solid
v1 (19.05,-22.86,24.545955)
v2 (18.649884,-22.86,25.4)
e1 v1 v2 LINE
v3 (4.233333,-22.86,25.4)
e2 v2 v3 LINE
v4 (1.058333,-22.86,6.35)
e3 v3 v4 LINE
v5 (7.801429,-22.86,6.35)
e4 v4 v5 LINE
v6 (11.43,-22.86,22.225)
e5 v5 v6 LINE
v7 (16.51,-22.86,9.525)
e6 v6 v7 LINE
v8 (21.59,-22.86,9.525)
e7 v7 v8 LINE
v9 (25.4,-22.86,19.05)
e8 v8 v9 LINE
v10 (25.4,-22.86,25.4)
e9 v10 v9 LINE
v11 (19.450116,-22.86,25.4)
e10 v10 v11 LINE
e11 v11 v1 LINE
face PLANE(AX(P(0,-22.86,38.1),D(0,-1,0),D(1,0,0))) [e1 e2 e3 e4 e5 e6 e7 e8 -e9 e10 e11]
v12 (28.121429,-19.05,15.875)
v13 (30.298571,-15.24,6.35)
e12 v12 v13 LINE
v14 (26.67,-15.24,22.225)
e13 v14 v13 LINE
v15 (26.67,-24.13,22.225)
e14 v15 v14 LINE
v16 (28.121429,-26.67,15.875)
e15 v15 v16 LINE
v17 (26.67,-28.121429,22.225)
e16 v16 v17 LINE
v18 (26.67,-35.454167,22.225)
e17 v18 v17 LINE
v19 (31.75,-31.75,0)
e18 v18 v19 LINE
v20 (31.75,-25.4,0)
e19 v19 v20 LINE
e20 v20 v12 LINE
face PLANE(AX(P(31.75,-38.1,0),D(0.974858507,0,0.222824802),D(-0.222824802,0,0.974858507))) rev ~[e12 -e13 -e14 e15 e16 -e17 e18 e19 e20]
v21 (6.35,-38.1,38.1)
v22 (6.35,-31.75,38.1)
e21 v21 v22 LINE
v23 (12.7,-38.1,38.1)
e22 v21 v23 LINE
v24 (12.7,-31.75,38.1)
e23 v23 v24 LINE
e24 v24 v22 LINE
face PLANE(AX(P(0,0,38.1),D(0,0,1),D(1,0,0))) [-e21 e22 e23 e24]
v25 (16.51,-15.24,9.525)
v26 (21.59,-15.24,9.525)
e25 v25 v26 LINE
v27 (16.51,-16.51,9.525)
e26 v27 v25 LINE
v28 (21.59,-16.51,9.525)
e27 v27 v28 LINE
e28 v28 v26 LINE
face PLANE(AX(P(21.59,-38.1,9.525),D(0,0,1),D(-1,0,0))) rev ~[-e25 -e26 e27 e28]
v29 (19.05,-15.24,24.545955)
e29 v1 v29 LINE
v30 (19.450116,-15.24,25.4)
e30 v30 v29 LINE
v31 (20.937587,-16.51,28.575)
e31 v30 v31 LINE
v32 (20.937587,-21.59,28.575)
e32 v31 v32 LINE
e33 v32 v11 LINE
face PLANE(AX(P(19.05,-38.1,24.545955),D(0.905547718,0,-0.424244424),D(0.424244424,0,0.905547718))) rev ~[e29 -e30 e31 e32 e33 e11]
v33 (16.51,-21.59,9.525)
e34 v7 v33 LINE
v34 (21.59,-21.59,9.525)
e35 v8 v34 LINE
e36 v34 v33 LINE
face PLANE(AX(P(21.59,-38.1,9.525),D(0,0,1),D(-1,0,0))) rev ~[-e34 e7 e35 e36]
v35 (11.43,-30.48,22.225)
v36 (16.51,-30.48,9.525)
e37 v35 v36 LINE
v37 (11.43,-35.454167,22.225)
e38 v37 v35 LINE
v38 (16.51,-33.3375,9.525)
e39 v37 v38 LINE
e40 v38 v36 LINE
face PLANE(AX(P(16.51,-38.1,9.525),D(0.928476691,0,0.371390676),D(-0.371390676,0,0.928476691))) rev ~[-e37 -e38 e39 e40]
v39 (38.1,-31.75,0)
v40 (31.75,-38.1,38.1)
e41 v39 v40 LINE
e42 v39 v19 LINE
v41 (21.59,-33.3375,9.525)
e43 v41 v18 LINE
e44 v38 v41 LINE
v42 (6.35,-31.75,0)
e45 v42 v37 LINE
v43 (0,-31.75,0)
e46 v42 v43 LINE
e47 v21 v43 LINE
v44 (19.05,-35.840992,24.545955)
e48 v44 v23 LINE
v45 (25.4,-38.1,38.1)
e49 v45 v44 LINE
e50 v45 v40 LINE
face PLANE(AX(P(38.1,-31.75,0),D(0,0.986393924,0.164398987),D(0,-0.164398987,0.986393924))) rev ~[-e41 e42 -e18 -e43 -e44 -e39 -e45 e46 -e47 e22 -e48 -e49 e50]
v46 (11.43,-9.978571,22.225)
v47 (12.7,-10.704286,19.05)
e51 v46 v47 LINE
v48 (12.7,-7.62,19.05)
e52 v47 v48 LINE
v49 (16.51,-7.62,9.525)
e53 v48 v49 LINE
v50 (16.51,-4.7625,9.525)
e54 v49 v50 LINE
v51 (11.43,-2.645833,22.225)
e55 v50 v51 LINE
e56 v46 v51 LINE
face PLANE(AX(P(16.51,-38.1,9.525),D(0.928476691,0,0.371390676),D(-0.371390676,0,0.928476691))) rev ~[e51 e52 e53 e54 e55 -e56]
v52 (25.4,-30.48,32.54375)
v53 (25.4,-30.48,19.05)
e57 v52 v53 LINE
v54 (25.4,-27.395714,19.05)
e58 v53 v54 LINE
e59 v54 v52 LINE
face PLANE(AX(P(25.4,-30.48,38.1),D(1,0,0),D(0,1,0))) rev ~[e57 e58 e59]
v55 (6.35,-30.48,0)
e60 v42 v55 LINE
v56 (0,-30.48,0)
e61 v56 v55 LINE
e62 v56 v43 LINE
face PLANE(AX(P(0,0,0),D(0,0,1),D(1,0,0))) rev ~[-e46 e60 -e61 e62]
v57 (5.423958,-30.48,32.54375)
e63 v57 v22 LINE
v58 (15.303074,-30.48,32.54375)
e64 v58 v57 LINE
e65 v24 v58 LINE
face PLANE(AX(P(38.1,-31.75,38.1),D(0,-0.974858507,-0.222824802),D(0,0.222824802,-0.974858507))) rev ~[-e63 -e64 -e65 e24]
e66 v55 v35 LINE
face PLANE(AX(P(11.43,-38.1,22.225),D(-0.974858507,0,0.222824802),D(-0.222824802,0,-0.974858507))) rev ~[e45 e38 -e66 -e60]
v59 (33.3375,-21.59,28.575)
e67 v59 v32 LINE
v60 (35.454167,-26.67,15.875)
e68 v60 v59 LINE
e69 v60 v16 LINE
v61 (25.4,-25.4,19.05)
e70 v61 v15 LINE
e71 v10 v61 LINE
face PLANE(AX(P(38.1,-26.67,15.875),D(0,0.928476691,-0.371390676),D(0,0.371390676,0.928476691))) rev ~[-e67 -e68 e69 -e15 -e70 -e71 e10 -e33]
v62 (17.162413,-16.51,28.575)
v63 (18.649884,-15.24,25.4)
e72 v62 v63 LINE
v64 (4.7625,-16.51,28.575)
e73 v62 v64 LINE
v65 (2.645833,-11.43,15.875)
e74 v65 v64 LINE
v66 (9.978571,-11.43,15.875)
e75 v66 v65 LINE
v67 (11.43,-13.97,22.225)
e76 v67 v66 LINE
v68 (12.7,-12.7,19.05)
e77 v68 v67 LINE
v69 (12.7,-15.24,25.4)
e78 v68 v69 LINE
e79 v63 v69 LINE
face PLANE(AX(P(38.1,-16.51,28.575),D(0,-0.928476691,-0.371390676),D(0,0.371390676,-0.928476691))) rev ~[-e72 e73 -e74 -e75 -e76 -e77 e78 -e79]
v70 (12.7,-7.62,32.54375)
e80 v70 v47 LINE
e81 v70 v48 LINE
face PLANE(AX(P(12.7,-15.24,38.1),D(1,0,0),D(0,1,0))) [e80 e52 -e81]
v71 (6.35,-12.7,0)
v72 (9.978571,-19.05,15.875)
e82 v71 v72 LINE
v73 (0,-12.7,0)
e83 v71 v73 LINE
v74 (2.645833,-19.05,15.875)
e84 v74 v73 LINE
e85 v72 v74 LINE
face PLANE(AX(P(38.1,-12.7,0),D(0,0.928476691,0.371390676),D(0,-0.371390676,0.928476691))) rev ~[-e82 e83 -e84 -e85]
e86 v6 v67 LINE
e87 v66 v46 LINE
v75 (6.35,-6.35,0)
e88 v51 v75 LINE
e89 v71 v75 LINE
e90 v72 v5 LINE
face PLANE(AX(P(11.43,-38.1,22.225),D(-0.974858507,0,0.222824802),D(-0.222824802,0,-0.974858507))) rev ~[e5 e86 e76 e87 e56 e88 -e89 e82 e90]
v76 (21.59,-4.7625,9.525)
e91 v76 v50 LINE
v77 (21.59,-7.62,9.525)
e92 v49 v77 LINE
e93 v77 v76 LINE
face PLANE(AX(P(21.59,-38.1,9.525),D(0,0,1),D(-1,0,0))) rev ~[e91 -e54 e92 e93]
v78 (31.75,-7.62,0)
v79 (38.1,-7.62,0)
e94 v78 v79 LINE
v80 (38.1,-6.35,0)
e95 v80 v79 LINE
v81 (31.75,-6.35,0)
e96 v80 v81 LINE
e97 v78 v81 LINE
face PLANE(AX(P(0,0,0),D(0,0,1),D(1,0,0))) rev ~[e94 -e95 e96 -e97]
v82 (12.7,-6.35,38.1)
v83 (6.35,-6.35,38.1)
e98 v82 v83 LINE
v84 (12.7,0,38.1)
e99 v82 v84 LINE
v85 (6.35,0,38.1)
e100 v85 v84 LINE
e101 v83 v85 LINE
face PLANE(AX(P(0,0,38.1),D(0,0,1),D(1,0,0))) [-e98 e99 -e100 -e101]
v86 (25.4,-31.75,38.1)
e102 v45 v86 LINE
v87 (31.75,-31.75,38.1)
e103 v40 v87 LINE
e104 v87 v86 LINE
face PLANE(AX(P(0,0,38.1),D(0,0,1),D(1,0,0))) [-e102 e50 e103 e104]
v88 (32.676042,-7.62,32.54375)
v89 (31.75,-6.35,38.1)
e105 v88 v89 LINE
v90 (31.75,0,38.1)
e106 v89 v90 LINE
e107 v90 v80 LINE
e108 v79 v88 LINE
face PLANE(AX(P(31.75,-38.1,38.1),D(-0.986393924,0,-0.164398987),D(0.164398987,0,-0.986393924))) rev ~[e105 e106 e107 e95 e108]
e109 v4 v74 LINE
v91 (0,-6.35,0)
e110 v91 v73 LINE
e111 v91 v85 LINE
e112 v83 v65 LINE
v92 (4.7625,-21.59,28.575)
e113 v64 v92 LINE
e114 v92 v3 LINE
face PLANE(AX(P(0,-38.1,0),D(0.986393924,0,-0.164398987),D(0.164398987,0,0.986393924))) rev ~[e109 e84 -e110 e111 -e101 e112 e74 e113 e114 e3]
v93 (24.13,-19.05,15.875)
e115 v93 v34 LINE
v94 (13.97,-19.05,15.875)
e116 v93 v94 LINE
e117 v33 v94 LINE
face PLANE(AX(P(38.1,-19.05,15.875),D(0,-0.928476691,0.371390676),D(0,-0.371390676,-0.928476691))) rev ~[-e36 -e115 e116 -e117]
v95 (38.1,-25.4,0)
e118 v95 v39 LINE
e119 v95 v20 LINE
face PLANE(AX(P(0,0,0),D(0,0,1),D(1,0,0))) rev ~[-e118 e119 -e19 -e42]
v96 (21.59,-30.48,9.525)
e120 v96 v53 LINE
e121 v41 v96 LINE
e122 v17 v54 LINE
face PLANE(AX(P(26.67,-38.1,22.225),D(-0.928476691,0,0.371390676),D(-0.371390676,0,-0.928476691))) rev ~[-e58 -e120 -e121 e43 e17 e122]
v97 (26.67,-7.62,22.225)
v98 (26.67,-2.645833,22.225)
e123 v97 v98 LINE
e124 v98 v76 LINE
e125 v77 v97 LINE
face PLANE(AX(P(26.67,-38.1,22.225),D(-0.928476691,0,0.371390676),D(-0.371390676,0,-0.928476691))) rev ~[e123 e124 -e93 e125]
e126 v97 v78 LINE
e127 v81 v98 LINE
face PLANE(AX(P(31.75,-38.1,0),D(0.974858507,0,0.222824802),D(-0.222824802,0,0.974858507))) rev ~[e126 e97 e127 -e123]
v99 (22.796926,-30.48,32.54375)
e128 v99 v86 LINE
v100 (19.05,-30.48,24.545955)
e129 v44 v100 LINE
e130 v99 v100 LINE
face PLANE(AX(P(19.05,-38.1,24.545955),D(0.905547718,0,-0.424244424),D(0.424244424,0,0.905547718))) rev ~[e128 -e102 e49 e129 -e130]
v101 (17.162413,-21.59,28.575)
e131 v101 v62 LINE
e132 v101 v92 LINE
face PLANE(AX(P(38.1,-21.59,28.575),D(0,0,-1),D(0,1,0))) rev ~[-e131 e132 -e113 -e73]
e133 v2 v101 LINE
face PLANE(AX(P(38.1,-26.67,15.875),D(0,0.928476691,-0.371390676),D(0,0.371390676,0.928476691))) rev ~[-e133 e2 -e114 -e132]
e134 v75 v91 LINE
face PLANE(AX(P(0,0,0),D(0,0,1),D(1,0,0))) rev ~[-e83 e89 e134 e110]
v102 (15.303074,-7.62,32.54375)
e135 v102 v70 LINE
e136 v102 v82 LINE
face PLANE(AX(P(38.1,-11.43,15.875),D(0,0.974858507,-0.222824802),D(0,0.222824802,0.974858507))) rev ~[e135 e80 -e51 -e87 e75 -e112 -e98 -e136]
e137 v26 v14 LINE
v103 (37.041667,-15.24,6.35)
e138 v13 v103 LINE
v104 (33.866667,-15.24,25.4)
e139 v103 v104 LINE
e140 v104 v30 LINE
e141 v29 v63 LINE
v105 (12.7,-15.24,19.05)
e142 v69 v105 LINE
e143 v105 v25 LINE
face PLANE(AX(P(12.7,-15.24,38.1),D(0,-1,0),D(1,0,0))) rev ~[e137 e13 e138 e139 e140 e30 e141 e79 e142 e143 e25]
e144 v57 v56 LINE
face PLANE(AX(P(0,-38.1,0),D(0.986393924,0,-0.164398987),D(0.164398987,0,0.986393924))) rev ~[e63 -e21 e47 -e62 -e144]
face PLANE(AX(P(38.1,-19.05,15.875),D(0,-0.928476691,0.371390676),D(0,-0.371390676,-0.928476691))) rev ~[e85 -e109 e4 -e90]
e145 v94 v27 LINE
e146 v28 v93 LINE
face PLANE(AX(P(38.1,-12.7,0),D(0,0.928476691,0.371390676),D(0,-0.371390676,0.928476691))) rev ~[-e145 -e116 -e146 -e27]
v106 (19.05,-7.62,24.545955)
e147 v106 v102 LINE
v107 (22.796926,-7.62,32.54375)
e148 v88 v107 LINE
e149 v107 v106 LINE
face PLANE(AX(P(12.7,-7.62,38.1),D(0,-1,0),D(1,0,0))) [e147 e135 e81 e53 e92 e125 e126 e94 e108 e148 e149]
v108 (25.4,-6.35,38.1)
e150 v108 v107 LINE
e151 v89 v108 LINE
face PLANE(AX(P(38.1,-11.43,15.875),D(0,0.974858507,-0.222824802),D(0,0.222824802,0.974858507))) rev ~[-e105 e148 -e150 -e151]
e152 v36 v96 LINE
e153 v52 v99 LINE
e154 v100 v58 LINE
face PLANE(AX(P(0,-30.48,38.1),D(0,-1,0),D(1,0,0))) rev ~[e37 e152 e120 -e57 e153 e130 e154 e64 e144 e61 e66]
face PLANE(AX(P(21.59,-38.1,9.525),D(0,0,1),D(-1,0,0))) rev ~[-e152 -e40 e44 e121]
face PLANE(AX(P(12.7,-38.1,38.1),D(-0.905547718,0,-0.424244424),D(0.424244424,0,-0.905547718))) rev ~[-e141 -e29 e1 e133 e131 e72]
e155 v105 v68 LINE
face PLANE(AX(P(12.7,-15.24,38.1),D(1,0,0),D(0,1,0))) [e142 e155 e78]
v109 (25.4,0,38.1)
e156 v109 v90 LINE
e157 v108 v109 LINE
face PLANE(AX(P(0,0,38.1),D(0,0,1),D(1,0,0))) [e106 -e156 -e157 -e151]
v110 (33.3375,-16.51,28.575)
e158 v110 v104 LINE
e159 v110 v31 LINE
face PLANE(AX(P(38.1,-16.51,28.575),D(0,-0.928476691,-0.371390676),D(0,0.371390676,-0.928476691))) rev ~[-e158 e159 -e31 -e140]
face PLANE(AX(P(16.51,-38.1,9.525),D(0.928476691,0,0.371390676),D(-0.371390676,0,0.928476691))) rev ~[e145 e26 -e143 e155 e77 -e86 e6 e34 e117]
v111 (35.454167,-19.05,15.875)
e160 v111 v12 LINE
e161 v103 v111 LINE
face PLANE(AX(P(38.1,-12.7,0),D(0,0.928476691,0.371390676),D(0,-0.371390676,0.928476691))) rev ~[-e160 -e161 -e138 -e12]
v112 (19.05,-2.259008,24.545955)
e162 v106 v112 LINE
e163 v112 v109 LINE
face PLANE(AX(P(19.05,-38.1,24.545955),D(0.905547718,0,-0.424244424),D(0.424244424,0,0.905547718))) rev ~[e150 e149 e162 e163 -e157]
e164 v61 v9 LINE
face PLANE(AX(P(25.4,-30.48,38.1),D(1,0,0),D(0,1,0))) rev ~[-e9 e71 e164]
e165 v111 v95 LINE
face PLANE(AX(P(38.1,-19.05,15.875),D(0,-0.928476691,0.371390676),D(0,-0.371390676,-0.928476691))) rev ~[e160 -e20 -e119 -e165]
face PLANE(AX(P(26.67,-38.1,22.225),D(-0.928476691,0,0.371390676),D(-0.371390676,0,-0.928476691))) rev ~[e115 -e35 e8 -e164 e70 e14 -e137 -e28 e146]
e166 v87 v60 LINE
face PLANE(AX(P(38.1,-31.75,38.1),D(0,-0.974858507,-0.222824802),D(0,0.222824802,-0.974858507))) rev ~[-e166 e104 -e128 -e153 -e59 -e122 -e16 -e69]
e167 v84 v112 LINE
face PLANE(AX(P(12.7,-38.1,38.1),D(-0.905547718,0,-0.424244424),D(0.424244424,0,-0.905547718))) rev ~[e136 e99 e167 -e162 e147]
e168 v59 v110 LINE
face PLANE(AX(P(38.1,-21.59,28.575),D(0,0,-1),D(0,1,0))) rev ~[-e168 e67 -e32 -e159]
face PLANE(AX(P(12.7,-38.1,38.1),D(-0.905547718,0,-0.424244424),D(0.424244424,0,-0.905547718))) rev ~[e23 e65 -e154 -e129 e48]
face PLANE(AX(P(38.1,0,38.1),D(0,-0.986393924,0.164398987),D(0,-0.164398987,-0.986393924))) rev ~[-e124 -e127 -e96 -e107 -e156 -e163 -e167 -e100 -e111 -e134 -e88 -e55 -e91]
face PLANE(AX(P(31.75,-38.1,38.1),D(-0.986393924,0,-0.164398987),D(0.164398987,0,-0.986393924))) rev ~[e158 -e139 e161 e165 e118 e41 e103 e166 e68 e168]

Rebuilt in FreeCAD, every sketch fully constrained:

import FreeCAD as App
import Part
import Sketcher
from FreeCAD import Vector
Q = App.Units.Quantity


def add_polygon(sketch, points):
    """Adds a closed chain of lines whose ends are joined by coincident constraints."""
    first, n = sketch.GeometryCount, len(points)
    for a, b in zip(points, points[1:] + points[:1]):
        sketch.addGeometry(Part.LineSegment(App.Vector(*a, 0), App.Vector(*b, 0)), False)
    for i in range(n):
        sketch.addConstraint(Sketcher.Constraint("Coincident", first + i, 2, first + (i + 1) % n, 1))

doc = App.newDocument("Part")
body = doc.addObject("PartDesign::Body", "Body")

# Sketch on XZ plane
sketch1 = doc.addObject("Sketcher::SketchObject", "Sketch")
body.addObject(sketch1)
sketch1.AttachmentSupport = (doc.XZ_Plane, [""])
sketch1.MapMode = "FlatFace"
add_polygon(sketch1, [(0, 38), (0, 0), (38, 0), (38, 38)])  # lines 0-3
sketch1.addConstraint(Sketcher.Constraint("Vertical", 0))
sketch1.addConstraint(Sketcher.Constraint("Horizontal", 1))
sketch1.addConstraint(Sketcher.Constraint("Vertical", 2))
sketch1.addConstraint(Sketcher.Constraint("Horizontal", 3))
sketch1.addConstraint(Sketcher.Constraint("Coincident", 0, 2, -1, 1))
sketch1.addConstraint(Sketcher.Constraint("Equal", 3, 0))
sketch1.addConstraint(Sketcher.Constraint("DistanceX", 1, 1, 1, 2, Q("1.5 in")))
pad1 = doc.addObject("PartDesign::Pad", "Pad")
body.addObject(pad1)
pad1.Profile = sketch1
pad1.Length = Q("1.5 in")

# Sketch on YZ plane
sketch2 = doc.addObject("Sketcher::SketchObject", "Sketch001")
body.addObject(sketch2)
sketch2.AttachmentSupport = (doc.YZ_Plane, [""])
sketch2.MapMode = "FlatFace"
sketch2.AttachmentOffset = App.Placement(Vector(0, 0, 1.5 * 25.4), App.Rotation())
add_polygon(sketch2, [(-11, 16), (-6, 38), (-32, 38), (-27, 16), (-22, 29), (-17, 29)])  # lines 0-5
add_polygon(sketch2, [(-32, 0), (-38, 38), (-38, 0)])  # lines 6-8
add_polygon(sketch2, [(-6, 0), (0, 0), (0, 38)])  # lines 9-11
add_polygon(sketch2, [(-25, 0), (-13, 0), (-19, 16)])  # lines 12-14
sketch2.addConstraint(Sketcher.Constraint("Horizontal", 1))
sketch2.addConstraint(Sketcher.Constraint("Horizontal", 4))
sketch2.addConstraint(Sketcher.Constraint("Vertical", 7))
sketch2.addConstraint(Sketcher.Constraint("Horizontal", 8))
sketch2.addConstraint(Sketcher.Constraint("Horizontal", 9))
sketch2.addConstraint(Sketcher.Constraint("Vertical", 10))
sketch2.addConstraint(Sketcher.Constraint("Horizontal", 12))
sketch2.addConstraint(Sketcher.Constraint("Coincident", 9, 2, -1, 1))
sketch2.addConstraint(Sketcher.Constraint("PointOnObject", 7, 2, -1))
sketch2.addConstraint(Sketcher.Constraint("PointOnObject", 12, 2, -1))
sketch2.addConstraint(Sketcher.Constraint("Parallel", 5, 13))
sketch2.addConstraint(Sketcher.Constraint("Parallel", 3, 14))
sketch2.addConstraint(Sketcher.Constraint("Horizontal", 2, 2, 5, 2))
sketch2.addConstraint(Sketcher.Constraint("Horizontal", 1, 2, 6, 2))
sketch2.addConstraint(Sketcher.Constraint("Horizontal", 6, 2, 10, 2))
sketch2.addConstraint(Sketcher.Constraint("Horizontal", 5, 2, 13, 2))
sketch2.addConstraint(Sketcher.Constraint("Vertical", 1, 2, 8, 2))
sketch2.addConstraint(Sketcher.Constraint("Vertical", 0, 2, 11, 2))
sketch2.addConstraint(Sketcher.Constraint("Equal", 8, 9))
sketch2.addConstraint(Sketcher.Constraint("Equal", 0, 2))
sketch2.addConstraint(Sketcher.Constraint("Equal", 3, 5))
sketch2.addConstraint(Sketcher.Constraint("DistanceX", 1, 2, 1, 1, Q("1 in")))
sketch2.addConstraint(Sketcher.Constraint("DistanceX", 4, 1, 4, 2, Q("0.2 in")))
sketch2.addConstraint(Sketcher.Constraint("DistanceX", 12, 1, 12, 2, Q("0.5 in")))
sketch2.addConstraint(Sketcher.Constraint("DistanceY", 7, 2, 7, 1, Q("1.5 in")))
sketch2.addConstraint(Sketcher.Constraint("DistanceX", 14, 2, -1, 1, Q("1 in")))
sketch2.addConstraint(Sketcher.Constraint("DistanceX", 8, 1, 8, 2, Q("0.25 in")))
sketch2.addConstraint(Sketcher.Constraint("DistanceX", 1, 2, 2, 2, Q("0.2 in")))
sketch2.addConstraint(Sketcher.Constraint("DistanceY", 2, 2, 3, 2, Q("0.5 in")))
pocket1 = doc.addObject("PartDesign::Pocket", "Pocket")
body.addObject(pocket1)
pocket1.Profile = sketch2
pocket1.Length = Q("1.5 in")

# Sketch on XZ plane
sketch3 = doc.addObject("Sketcher::SketchObject", "Sketch002")
body.addObject(sketch3)
sketch3.AttachmentSupport = (doc.XZ_Plane, [""])
sketch3.MapMode = "FlatFace"
sketch3.AttachmentOffset = App.Placement(Vector(0, 0, 1.5 * 25.4), App.Rotation())
add_polygon(sketch3, [(25, 38), (13, 38), (19, 25)])  # lines 0-2
add_polygon(sketch3, [(11, 22), (6, 0), (32, 0), (27, 22), (22, 10), (17, 10)])  # lines 3-8
add_polygon(sketch3, [(32, 38), (38, 0), (38, 38)])  # lines 9-11
add_polygon(sketch3, [(0, 38), (0, 0), (6, 38)])  # lines 12-14
sketch3.addConstraint(Sketcher.Constraint("Horizontal", 0))
sketch3.addConstraint(Sketcher.Constraint("Horizontal", 4))
sketch3.addConstraint(Sketcher.Constraint("Horizontal", 7))
sketch3.addConstraint(Sketcher.Constraint("Vertical", 10))
sketch3.addConstraint(Sketcher.Constraint("Horizontal", 11))
sketch3.addConstraint(Sketcher.Constraint("Vertical", 12))
sketch3.addConstraint(Sketcher.Constraint("Horizontal", 14))
sketch3.addConstraint(Sketcher.Constraint("Coincident", 12, 2, -1, 1))
sketch3.addConstraint(Sketcher.Constraint("PointOnObject", 3, 2, -1))
sketch3.addConstraint(Sketcher.Constraint("PointOnObject", 9, 2, -1))
sketch3.addConstraint(Sketcher.Constraint("Horizontal", 5, 2, 8, 2))
sketch3.addConstraint(Sketcher.Constraint("Horizontal", 2, 2, 10, 2))
sketch3.addConstraint(Sketcher.Constraint("Horizontal", 11, 2, 13, 2))
sketch3.addConstraint(Sketcher.Constraint("Vertical", 4, 2, 11, 2))
sketch3.addConstraint(Sketcher.Constraint("Vertical", 3, 2, 13, 2))
sketch3.addConstraint(Sketcher.Constraint("Equal", 11, 14))
sketch3.addConstraint(Sketcher.Constraint("Equal", 1, 2))
sketch3.addConstraint(Sketcher.Constraint("Equal", 3, 5))
sketch3.addConstraint(Sketcher.Constraint("Equal", 6, 8))
sketch3.addConstraint(Sketcher.Constraint("DistanceX", 4, 1, 4, 2, Q("1 in")))
sketch3.addConstraint(Sketcher.Constraint("DistanceX", 0, 2, 0, 1, Q("0.5 in")))
sketch3.addConstraint(Sketcher.Constraint("DistanceX", 7, 2, 7, 1, Q("0.2 in")))
sketch3.addConstraint(Sketcher.Constraint("DistanceY", 10, 1, 10, 2, Q("1.5 in")))
sketch3.addConstraint(Sketcher.Constraint("DistanceX", -1, 1, 2, 2, Q("1 in")))
sketch3.addConstraint(Sketcher.Constraint("DistanceX", 0, 2, 10, 2, Q("1 in")))
sketch3.addConstraint(Sketcher.Constraint("DistanceX", 1, 2, 5, 2, Q("0.3 in")))
sketch3.addConstraint(Sketcher.Constraint("DistanceY", 6, 2, 5, 2, Q("0.5 in")))
sketch3.addConstraint(Sketcher.Constraint("DistanceY", -1, 1, 5, 2, Q("0.875 in")))
sketch3.addConstraint(Sketcher.Constraint("Distance", 1, Q("14.967787 mm")))
pocket2 = doc.addObject("PartDesign::Pocket", "Pocket001")
body.addObject(pocket2)
pocket2.Profile = sketch3
pocket2.Length = Q("1.5 in")

# Sketch on XY plane
sketch4 = doc.addObject("Sketcher::SketchObject", "Sketch003")
body.addObject(sketch4)
sketch4.AttachmentSupport = (doc.XY_Plane, [""])
sketch4.MapMode = "FlatFace"
sketch4.AttachmentOffset = App.Placement(Vector(0, 0, 1.5 * 25.4), App.Rotation())
add_polygon(sketch4, [(13, -8), (13, -15), (38, -15), (38, -8)])  # lines 0-3
add_polygon(sketch4, [(0, -23), (0, -30), (25, -30), (25, -23)])  # lines 4-7
sketch4.addConstraint(Sketcher.Constraint("Vertical", 0))
sketch4.addConstraint(Sketcher.Constraint("Horizontal", 1))
sketch4.addConstraint(Sketcher.Constraint("Vertical", 2))
sketch4.addConstraint(Sketcher.Constraint("Horizontal", 3))
sketch4.addConstraint(Sketcher.Constraint("Vertical", 4))
sketch4.addConstraint(Sketcher.Constraint("Horizontal", 5))
sketch4.addConstraint(Sketcher.Constraint("Vertical", 6))
sketch4.addConstraint(Sketcher.Constraint("Horizontal", 7))
sketch4.addConstraint(Sketcher.Constraint("PointOnObject", 4, 2, -2))
sketch4.addConstraint(Sketcher.Constraint("Equal", 3, 5))
sketch4.addConstraint(Sketcher.Constraint("Equal", 2, 4))
sketch4.addConstraint(Sketcher.Constraint("DistanceX", 1, 1, 1, 2, Q("1 in")))
sketch4.addConstraint(Sketcher.Constraint("DistanceY", 0, 2, 0, 1, Q("0.3 in")))
sketch4.addConstraint(Sketcher.Constraint("DistanceX", -1, 1, 0, 2, Q("0.5 in")))
sketch4.addConstraint(Sketcher.Constraint("DistanceY", 0, 2, -1, 1, Q("0.6 in")))
sketch4.addConstraint(Sketcher.Constraint("DistanceY", 4, 2, -1, 1, Q("1.2 in")))
pocket3 = doc.addObject("PartDesign::Pocket", "Pocket002")
body.addObject(pocket3)
pocket3.Profile = sketch4
pocket3.Length = Q("1.5 in")

doc.recompute()
